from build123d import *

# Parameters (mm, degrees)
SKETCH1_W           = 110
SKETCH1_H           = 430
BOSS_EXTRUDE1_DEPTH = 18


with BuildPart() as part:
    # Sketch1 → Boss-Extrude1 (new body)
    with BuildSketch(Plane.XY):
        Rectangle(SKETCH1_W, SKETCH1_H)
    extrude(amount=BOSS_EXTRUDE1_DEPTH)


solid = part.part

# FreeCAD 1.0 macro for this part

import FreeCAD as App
import Part
import Sketcher

V = App.Vector
Q = App.Units.Quantity


def add_polygon(sketch, points):
    """Adds a closed chain of lines whose ends are joined by coincident constraints."""
    first, n = sketch.GeometryCount, len(points)
    for a, b in zip(points, points[1:] + points[:1]):
        sketch.addGeometry(Part.LineSegment(App.Vector(*a, 0), App.Vector(*b, 0)), False)
    for i in range(n):
        sketch.addConstraint(Sketcher.Constraint("Coincident", first + i, 2, first + (i + 1) % n, 1))

doc = App.newDocument("Part")
params = doc.addObject("Spreadsheet::Sheet", "Params")
for row, (alias, value) in enumerate([
    ("sketch1_width", "110 mm"),
    ("sketch1_height", "430 mm"),
    ("pad1_length", "18 mm"),
], start=1):
    params.set(f"A{row}", alias)
    params.set(f"B{row}", "=" + value)
    params.setAlias(f"B{row}", alias)

body = doc.addObject("PartDesign::Body", "Body")

sketch1 = body.newObject("Sketcher::SketchObject", "Sketch")
sketch1.AttachmentSupport = (doc.getObject("XY_Plane"), [""])
sketch1.MapMode = "FlatFace"
add_polygon(sketch1, [(-55, 215), (-55, -215), (55, -215), (55, 215)])
sketch1.addConstraint([
    Sketcher.Constraint("Vertical", 0),
    Sketcher.Constraint("Horizontal", 1),
    Sketcher.Constraint("Vertical", 2),
    Sketcher.Constraint("Horizontal", 3),
    Sketcher.Constraint("Symmetric", 0, 2, 2, 2, -1, 1),
    Sketcher.Constraint("DistanceX", 1, 1, 1, 2, Q("110 mm")),
    Sketcher.Constraint("DistanceY", 0, 2, 0, 1, Q("430 mm")),
])
sketch1.setExpression("Constraints[9]", "Params.sketch1_width")
sketch1.setExpression("Constraints[10]", "Params.sketch1_height")
pad1 = body.newObject("PartDesign::Pad", "Pad")
pad1.Profile = sketch1
pad1.setExpression("Length", "Params.pad1_length")

doc.recompute()
